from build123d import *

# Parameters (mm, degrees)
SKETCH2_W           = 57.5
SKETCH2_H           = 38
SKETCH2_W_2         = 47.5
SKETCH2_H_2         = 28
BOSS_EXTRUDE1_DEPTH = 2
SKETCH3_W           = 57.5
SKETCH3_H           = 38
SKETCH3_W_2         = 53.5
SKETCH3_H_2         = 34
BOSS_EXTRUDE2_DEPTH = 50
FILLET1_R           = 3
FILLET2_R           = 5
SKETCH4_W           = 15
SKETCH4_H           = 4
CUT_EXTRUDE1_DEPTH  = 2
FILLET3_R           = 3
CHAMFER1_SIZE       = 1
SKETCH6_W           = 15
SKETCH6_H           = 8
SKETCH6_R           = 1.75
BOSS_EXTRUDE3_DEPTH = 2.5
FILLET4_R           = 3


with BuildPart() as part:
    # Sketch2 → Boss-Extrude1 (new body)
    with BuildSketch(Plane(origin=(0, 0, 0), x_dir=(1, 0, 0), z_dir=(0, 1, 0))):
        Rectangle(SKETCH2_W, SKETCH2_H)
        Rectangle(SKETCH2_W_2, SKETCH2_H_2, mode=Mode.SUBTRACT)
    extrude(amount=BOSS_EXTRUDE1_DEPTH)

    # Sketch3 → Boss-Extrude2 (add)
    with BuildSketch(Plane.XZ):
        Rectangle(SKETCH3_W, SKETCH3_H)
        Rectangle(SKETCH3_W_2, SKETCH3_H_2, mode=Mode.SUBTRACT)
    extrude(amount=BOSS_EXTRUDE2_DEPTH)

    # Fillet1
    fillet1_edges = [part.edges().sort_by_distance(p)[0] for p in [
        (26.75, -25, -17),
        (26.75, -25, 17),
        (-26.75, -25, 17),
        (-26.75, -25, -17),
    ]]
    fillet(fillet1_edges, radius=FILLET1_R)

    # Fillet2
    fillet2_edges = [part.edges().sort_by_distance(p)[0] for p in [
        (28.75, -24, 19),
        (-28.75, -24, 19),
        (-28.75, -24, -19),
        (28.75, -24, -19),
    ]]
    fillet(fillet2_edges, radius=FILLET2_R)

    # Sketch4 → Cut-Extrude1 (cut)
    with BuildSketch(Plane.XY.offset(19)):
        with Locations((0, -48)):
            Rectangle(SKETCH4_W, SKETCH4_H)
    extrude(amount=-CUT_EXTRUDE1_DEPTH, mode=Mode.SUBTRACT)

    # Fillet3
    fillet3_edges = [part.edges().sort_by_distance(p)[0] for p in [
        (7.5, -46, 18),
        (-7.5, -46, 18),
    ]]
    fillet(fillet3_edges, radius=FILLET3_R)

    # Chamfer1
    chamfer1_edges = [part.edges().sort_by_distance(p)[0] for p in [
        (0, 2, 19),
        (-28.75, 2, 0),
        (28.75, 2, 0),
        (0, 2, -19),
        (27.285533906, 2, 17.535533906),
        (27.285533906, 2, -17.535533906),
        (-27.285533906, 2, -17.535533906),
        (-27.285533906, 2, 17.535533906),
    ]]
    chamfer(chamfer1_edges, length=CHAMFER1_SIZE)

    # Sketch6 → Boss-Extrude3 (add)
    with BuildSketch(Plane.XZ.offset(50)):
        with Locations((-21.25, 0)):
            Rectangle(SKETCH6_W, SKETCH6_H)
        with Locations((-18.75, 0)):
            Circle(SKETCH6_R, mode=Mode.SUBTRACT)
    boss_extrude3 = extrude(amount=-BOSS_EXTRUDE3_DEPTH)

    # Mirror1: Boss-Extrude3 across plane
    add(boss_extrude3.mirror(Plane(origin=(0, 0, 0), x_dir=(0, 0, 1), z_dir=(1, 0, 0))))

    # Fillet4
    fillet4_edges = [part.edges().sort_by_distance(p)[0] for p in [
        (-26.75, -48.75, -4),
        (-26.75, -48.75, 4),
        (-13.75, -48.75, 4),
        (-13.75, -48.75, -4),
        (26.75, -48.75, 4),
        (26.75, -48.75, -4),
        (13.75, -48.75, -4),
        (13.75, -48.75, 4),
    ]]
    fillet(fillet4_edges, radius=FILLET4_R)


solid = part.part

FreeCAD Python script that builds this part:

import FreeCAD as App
import Part
import Sketcher


def edges_at(feature, points):
    """Names of the edges that pass closest to the given points."""
    edges = feature.Shape.Edges
    near = lambda p: min(range(len(edges)), key=lambda i: edges[i].distToShape(Part.Vertex(*p))[0])
    return sorted({f"Edge{near(p) + 1}" for p in points})

doc = App.newDocument("Part")
params = doc.addObject("Spreadsheet::Sheet", "Params")
for row, (alias, value) in enumerate([
    ("sketch1_height", "38 mm"),
    ("sketch1_height2", "28 mm"),
    ("sketch1_width", "57.5 mm"),
    ("sketch1_width2", "47.5 mm"),
    ("pad1_length", "2 mm"),
    ("sketch2_height", "38 mm"),
    ("sketch2_height2", "34 mm"),
    ("sketch2_width", "57.5 mm"),
    ("sketch2_width2", "53.5 mm"),
    ("pad2_length", "50 mm"),
    ("fillet_radius", "3 mm"),
    ("fillet2_radius", "5 mm"),
    ("sketch3_width", "15 mm"),
    ("sketch3_height", "4 mm"),
    ("pocket1_length", "2 mm"),
    ("fillet3_radius", "3 mm"),
    ("chamfer_size", "1 mm"),
    ("sketch4_diameter", "3.5 mm"),
    ("sketch4_width", "15 mm"),
    ("sketch4_height", "8 mm"),
    ("pad3_length", "2.5 mm"),
    ("fillet4_radius", "3 mm"),
], start=1):
    params.set(f"A{row}", alias)
    params.set(f"B{row}", "=" + value)
    params.setAlias(f"B{row}", alias)

body = doc.addObject("PartDesign::Body", "Body")

# Sketch on XZ plane
sketch1 = doc.addObject("Sketcher::SketchObject", "Sketch")
body.addObject(sketch1)
sketch1.AttachmentSupport = (doc.XZ_Plane, [""])
sketch1.MapMode = "FlatFace"
sketch1.addGeometry(Part.LineSegment(App.Vector(-28.75, -19, 0), App.Vector(-28.75, 19, 0)), False)
sketch1.addGeometry(Part.LineSegment(App.Vector(-28.75, 19, 0), App.Vector(28.75, 19, 0)), False)
sketch1.addGeometry(Part.LineSegment(App.Vector(28.75, 19, 0), App.Vector(28.75, -19, 0)), False)
sketch1.addGeometry(Part.LineSegment(App.Vector(28.75, -19, 0), App.Vector(-28.75, -19, 0)), False)
sketch1.addGeometry(Part.LineSegment(App.Vector(23.75, 14, 0), App.Vector(-23.75, 14, 0)), False)
sketch1.addGeometry(Part.LineSegment(App.Vector(-23.75, 14, 0), App.Vector(-23.75, -14, 0)), False)
sketch1.addGeometry(Part.LineSegment(App.Vector(-23.75, -14, 0), App.Vector(23.75, -14, 0)), False)
sketch1.addGeometry(Part.LineSegment(App.Vector(23.75, -14, 0), App.Vector(23.75, 14, 0)), False)
sketch1.addConstraint(Sketcher.Constraint("Coincident", 0, 2, 1, 1))
sketch1.addConstraint(Sketcher.Constraint("Coincident", 1, 2, 2, 1))
sketch1.addConstraint(Sketcher.Constraint("Coincident", 2, 2, 3, 1))
sketch1.addConstraint(Sketcher.Constraint("Coincident", 3, 2, 0, 1))
sketch1.addConstraint(Sketcher.Constraint("Coincident", 4, 2, 5, 1))
sketch1.addConstraint(Sketcher.Constraint("Coincident", 5, 2, 6, 1))
sketch1.addConstraint(Sketcher.Constraint("Coincident", 6, 2, 7, 1))
sketch1.addConstraint(Sketcher.Constraint("Coincident", 7, 2, 4, 1))
sketch1.addConstraint(Sketcher.Constraint("Vertical", 0))
sketch1.addConstraint(Sketcher.Constraint("Horizontal", 1))
sketch1.addConstraint(Sketcher.Constraint("Vertical", 2))
sketch1.addConstraint(Sketcher.Constraint("Horizontal", 3))
sketch1.addConstraint(Sketcher.Constraint("Horizontal", 4))
sketch1.addConstraint(Sketcher.Constraint("Vertical", 5))
sketch1.addConstraint(Sketcher.Constraint("Horizontal", 6))
sketch1.addConstraint(Sketcher.Constraint("Vertical", 7))
sketch1.addConstraint(Sketcher.Constraint("Symmetric", 0, 2, 2, 2, -1, 1))
sketch1.addConstraint(Sketcher.Constraint("Symmetric", 4, 2, 6, 2, -1, 1))
sketch1.addConstraint(Sketcher.Constraint("DistanceY", 0, 1, 0, 2, 38.0))
sketch1.addConstraint(Sketcher.Constraint("DistanceY", 5, 2, 5, 1, 28.0))
sketch1.addConstraint(Sketcher.Constraint("DistanceX", 1, 1, 1, 2, 57.5))
sketch1.addConstraint(Sketcher.Constraint("DistanceX", 4, 2, 4, 1, 47.5))
sketch1.setExpression("Constraints[18]", "Params.sketch1_height")
sketch1.setExpression("Constraints[19]", "Params.sketch1_height2")
sketch1.setExpression("Constraints[20]", "Params.sketch1_width")
sketch1.setExpression("Constraints[21]", "Params.sketch1_width2")
pad1 = doc.addObject("PartDesign::Pad", "Pad")
body.addObject(pad1)
pad1.Profile = sketch1
pad1.setExpression("Length", "Params.pad1_length")
pad1.Reversed = True

# Sketch on XZ plane
sketch2 = doc.addObject("Sketcher::SketchObject", "Sketch001")
body.addObject(sketch2)
sketch2.AttachmentSupport = (doc.XZ_Plane, [""])
sketch2.MapMode = "FlatFace"
sketch2.addGeometry(Part.LineSegment(App.Vector(-28.75, 19, 0), App.Vector(-28.75, -19, 0)), False)
sketch2.addGeometry(Part.LineSegment(App.Vector(-28.75, -19, 0), App.Vector(28.75, -19, 0)), False)
sketch2.addGeometry(Part.LineSegment(App.Vector(28.75, -19, 0), App.Vector(28.75, 19, 0)), False)
sketch2.addGeometry(Part.LineSegment(App.Vector(28.75, 19, 0), App.Vector(-28.75, 19, 0)), False)
sketch2.addGeometry(Part.LineSegment(App.Vector(26.75, -17, 0), App.Vector(-26.75, -17, 0)), False)
sketch2.addGeometry(Part.LineSegment(App.Vector(-26.75, -17, 0), App.Vector(-26.75, 17, 0)), False)
sketch2.addGeometry(Part.LineSegment(App.Vector(-26.75, 17, 0), App.Vector(26.75, 17, 0)), False)
sketch2.addGeometry(Part.LineSegment(App.Vector(26.75, 17, 0), App.Vector(26.75, -17, 0)), False)
sketch2.addConstraint(Sketcher.Constraint("Coincident", 0, 2, 1, 1))
sketch2.addConstraint(Sketcher.Constraint("Coincident", 1, 2, 2, 1))
sketch2.addConstraint(Sketcher.Constraint("Coincident", 2, 2, 3, 1))
sketch2.addConstraint(Sketcher.Constraint("Coincident", 3, 2, 0, 1))
sketch2.addConstraint(Sketcher.Constraint("Coincident", 4, 2, 5, 1))
sketch2.addConstraint(Sketcher.Constraint("Coincident", 5, 2, 6, 1))
sketch2.addConstraint(Sketcher.Constraint("Coincident", 6, 2, 7, 1))
sketch2.addConstraint(Sketcher.Constraint("Coincident", 7, 2, 4, 1))
sketch2.addConstraint(Sketcher.Constraint("Vertical", 0))
sketch2.addConstraint(Sketcher.Constraint("Horizontal", 1))
sketch2.addConstraint(Sketcher.Constraint("Vertical", 2))
sketch2.addConstraint(Sketcher.Constraint("Horizontal", 3))
sketch2.addConstraint(Sketcher.Constraint("Horizontal", 4))
sketch2.addConstraint(Sketcher.Constraint("Vertical", 5))
sketch2.addConstraint(Sketcher.Constraint("Horizontal", 6))
sketch2.addConstraint(Sketcher.Constraint("Vertical", 7))
sketch2.addConstraint(Sketcher.Constraint("Symmetric", 0, 2, 2, 2, -1, 1))
sketch2.addConstraint(Sketcher.Constraint("Symmetric", 4, 2, 6, 2, -1, 1))
sketch2.addConstraint(Sketcher.Constraint("DistanceY", 0, 2, 0, 1, 38.0))
sketch2.addConstraint(Sketcher.Constraint("DistanceY", 5, 1, 5, 2, 34.0))
sketch2.addConstraint(Sketcher.Constraint("DistanceX", 1, 1, 1, 2, 57.5))
sketch2.addConstraint(Sketcher.Constraint("DistanceX", 4, 2, 4, 1, 53.5))
sketch2.setExpression("Constraints[18]", "Params.sketch2_height")
sketch2.setExpression("Constraints[19]", "Params.sketch2_height2")
sketch2.setExpression("Constraints[20]", "Params.sketch2_width")
sketch2.setExpression("Constraints[21]", "Params.sketch2_width2")
pad2 = doc.addObject("PartDesign::Pad", "Pad001")
body.addObject(pad2)
pad2.Profile = sketch2
pad2.setExpression("Length", "Params.pad2_length")
doc.recompute()

fillet = doc.addObject("PartDesign::Fillet", "Fillet")
body.addObject(fillet)
fillet.Base = (pad2, edges_at(pad2, [
    (26.75, -25, -17),
    (26.75, -25, 17),
    (-26.75, -25, 17),
    (-26.75, -25, -17),
]))
fillet.setExpression("Radius", "Params.fillet_radius")
doc.recompute()

fillet2 = doc.addObject("PartDesign::Fillet", "Fillet001")
body.addObject(fillet2)
fillet2.Base = (fillet, edges_at(fillet, [
    (28.75, -24, 19),
    (-28.75, -24, 19),
    (-28.75, -24, -19),
    (28.75, -24, -19),
]))
fillet2.setExpression("Radius", "Params.fillet2_radius")

# Sketch on XY plane
sketch3 = doc.addObject("Sketcher::SketchObject", "Sketch002")
body.addObject(sketch3)
sketch3.AttachmentSupport = (doc.XY_Plane, [""])
sketch3.MapMode = "FlatFace"
sketch3.AttachmentOffset = App.Placement(App.Vector(0, 0, 19), App.Rotation())
sketch3.addGeometry(Part.LineSegment(App.Vector(-7.5, -46, 0), App.Vector(-7.5, -50, 0)), False)
sketch3.addGeometry(Part.LineSegment(App.Vector(-7.5, -50, 0), App.Vector(7.5, -50, 0)), False)
sketch3.addGeometry(Part.LineSegment(App.Vector(7.5, -50, 0), App.Vector(7.5, -46, 0)), False)
sketch3.addGeometry(Part.LineSegment(App.Vector(7.5, -46, 0), App.Vector(-7.5, -46, 0)), False)
sketch3.addConstraint(Sketcher.Constraint("Coincident", 0, 2, 1, 1))
sketch3.addConstraint(Sketcher.Constraint("Coincident", 1, 2, 2, 1))
sketch3.addConstraint(Sketcher.Constraint("Coincident", 2, 2, 3, 1))
sketch3.addConstraint(Sketcher.Constraint("Coincident", 3, 2, 0, 1))
sketch3.addConstraint(Sketcher.Constraint("Vertical", 0))
sketch3.addConstraint(Sketcher.Constraint("Horizontal", 1))
sketch3.addConstraint(Sketcher.Constraint("Vertical", 2))
sketch3.addConstraint(Sketcher.Constraint("Horizontal", 3))
sketch3.addConstraint(Sketcher.Constraint("DistanceX", 1, 1, 1, 2, 15.0))
sketch3.addConstraint(Sketcher.Constraint("DistanceY", 0, 2, 0, 1, 4.0))
sketch3.addConstraint(Sketcher.Constraint("DistanceY", 0, 2, -1, 1, 50.0))
sketch3.addConstraint(Sketcher.Constraint("DistanceX", 0, 2, -1, 1, 7.5))
sketch3.setExpression("Constraints[8]", "Params.sketch3_width")
sketch3.setExpression("Constraints[9]", "Params.sketch3_height")
pocket1 = doc.addObject("PartDesign::Pocket", "Pocket")
body.addObject(pocket1)
pocket1.Profile = sketch3
pocket1.setExpression("Length", "Params.pocket1_length")
doc.recompute()

fillet3 = doc.addObject("PartDesign::Fillet", "Fillet002")
body.addObject(fillet3)
fillet3.Base = (pocket1, edges_at(pocket1, [(7.5, -46, 18), (-7.5, -46, 18)]))
fillet3.setExpression("Radius", "Params.fillet3_radius")
doc.recompute()

chamfer = doc.addObject("PartDesign::Chamfer", "Chamfer")
body.addObject(chamfer)
chamfer.Base = (fillet3, edges_at(fillet3, [
    (0, 2, 19),
    (-28.75, 2, 0),
    (28.75, 2, 0),
    (0, 2, -19),
    (27.286, 2, 17.536),
    (27.286, 2, -17.536),
    (-27.286, 2, -17.536),
    (-27.286, 2, 17.536),
]))
chamfer.setExpression("Size", "Params.chamfer_size")

# Sketch on XZ plane
sketch4 = doc.addObject("Sketcher::SketchObject", "Sketch003")
body.addObject(sketch4)
sketch4.AttachmentSupport = (doc.XZ_Plane, [""])
sketch4.MapMode = "FlatFace"
sketch4.AttachmentOffset = App.Placement(App.Vector(0, 0, 50), App.Rotation())
sketch4.addGeometry(Part.LineSegment(App.Vector(-28.75, 4, 0), App.Vector(-28.75, -4, 0)), False)
sketch4.addGeometry(Part.LineSegment(App.Vector(-28.75, -4, 0), App.Vector(-13.75, -4, 0)), False)
sketch4.addGeometry(Part.LineSegment(App.Vector(-13.75, -4, 0), App.Vector(-13.75, 4, 0)), False)
sketch4.addGeometry(Part.LineSegment(App.Vector(-13.75, 4, 0), App.Vector(-28.75, 4, 0)), False)
sketch4.addGeometry(Part.Circle(App.Vector(-18.75, 0, 0), App.Vector(0, 0, 1), 1.75), False)
sketch4.addConstraint(Sketcher.Constraint("Coincident", 0, 2, 1, 1))
sketch4.addConstraint(Sketcher.Constraint("Coincident", 1, 2, 2, 1))
sketch4.addConstraint(Sketcher.Constraint("Coincident", 2, 2, 3, 1))
sketch4.addConstraint(Sketcher.Constraint("Coincident", 3, 2, 0, 1))
sketch4.addConstraint(Sketcher.Constraint("Vertical", 0))
sketch4.addConstraint(Sketcher.Constraint("Horizontal", 1))
sketch4.addConstraint(Sketcher.Constraint("Vertical", 2))
sketch4.addConstraint(Sketcher.Constraint("Horizontal", 3))
sketch4.addConstraint(Sketcher.Constraint("PointOnObject", 4, 3, -1))
sketch4.addConstraint(Sketcher.Constraint("Diameter", 4, 3.5))
sketch4.addConstraint(Sketcher.Constraint("DistanceX", 1, 1, 1, 2, 15.0))
sketch4.addConstraint(Sketcher.Constraint("DistanceY", 0, 2, 0, 1, 8.0))
sketch4.addConstraint(Sketcher.Constraint("DistanceY", 0, 2, -1, 1, 4.0))
sketch4.addConstraint(Sketcher.Constraint("DistanceX", 0, 2, 4, 3, 10.0))
sketch4.addConstraint(Sketcher.Constraint("DistanceX", 4, 3, -1, 1, 18.75))
sketch4.setExpression("Constraints[9]", "Params.sketch4_diameter")
sketch4.setExpression("Constraints[10]", "Params.sketch4_width")
sketch4.setExpression("Constraints[11]", "Params.sketch4_height")
pad3 = doc.addObject("PartDesign::Pad", "Pad002")
body.addObject(pad3)
pad3.Profile = sketch4
pad3.setExpression("Length", "Params.pad3_length")
pad3.Reversed = True
doc.recompute()

mirrored = doc.addObject("PartDesign::Mirrored", "Mirrored")
body.addObject(mirrored)
mirrored.Originals = [pad3]
mirrored.MirrorPlane = (doc.YZ_Plane, [""])
body.Tip = mirrored
doc.recompute()

fillet4 = doc.addObject("PartDesign::Fillet", "Fillet003")
body.addObject(fillet4)
fillet4.Base = (mirrored, edges_at(mirrored, [
    (-26.75, -48.75, -4),
    (-26.75, -48.75, 4),
    (-13.75, -48.75, 4),
    (-13.75, -48.75, -4),
    (26.75, -48.75, 4),
    (26.75, -48.75, -4),
    (13.75, -48.75, -4),
    (13.75, -48.75, 4),
]))
fillet4.setExpression("Radius", "Params.fillet4_radius")

doc.recompute()
